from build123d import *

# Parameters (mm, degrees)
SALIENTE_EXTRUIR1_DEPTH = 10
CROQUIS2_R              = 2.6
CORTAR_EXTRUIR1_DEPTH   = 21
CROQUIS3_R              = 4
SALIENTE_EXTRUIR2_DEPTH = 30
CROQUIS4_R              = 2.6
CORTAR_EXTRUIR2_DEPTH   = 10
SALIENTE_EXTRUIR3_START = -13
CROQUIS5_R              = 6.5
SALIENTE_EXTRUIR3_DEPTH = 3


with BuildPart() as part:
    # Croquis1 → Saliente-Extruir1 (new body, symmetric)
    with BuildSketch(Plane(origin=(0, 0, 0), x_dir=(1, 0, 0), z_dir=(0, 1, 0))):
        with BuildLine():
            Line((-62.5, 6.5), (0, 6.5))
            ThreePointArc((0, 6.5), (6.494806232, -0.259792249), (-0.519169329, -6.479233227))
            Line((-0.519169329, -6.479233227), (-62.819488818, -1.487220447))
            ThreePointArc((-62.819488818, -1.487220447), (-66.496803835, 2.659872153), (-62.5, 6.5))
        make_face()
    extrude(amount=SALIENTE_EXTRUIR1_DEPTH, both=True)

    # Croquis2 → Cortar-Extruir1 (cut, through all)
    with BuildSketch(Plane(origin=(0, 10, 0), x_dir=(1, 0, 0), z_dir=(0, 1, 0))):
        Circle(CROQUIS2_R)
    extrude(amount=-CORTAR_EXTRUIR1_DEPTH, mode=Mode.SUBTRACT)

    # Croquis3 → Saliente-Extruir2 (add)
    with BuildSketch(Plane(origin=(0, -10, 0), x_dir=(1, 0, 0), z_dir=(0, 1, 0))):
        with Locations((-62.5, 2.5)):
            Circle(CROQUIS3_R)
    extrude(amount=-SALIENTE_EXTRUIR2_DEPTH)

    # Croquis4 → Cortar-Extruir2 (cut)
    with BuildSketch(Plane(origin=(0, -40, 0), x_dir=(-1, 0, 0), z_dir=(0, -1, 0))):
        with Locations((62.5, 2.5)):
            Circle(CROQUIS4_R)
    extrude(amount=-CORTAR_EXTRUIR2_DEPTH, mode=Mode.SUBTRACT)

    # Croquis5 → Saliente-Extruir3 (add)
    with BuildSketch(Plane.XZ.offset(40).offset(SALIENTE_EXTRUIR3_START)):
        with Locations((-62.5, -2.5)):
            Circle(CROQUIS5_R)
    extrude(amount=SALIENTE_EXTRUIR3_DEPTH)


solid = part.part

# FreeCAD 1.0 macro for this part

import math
import FreeCAD as App
import Part
import Sketcher

V = App.Vector

doc = App.newDocument("Part")
body = doc.addObject("PartDesign::Body", "Body")

sketch1 = body.newObject("Sketcher::SketchObject", "Sketch")
sketch1.AttachmentSupport = (doc.getObject("XZ_Plane"), [""])
sketch1.MapMode = "FlatFace"
sketch1.addGeometry(Part.LineSegment(V(0, -6.5, 0), V(-62.5, -6.5, 0)), False)
sketch1.addGeometry(Part.ArcOfCircle(Part.Circle(V(-62.5, -2.5, 0), V(0, 0, 1), 4), math.radians(94.58122), math.radians(270)), False)
sketch1.addGeometry(Part.LineSegment(V(-62.819489, 1.48722, 0), V(-0.519169, 6.479233, 0)), False)
sketch1.addGeometry(Part.ArcOfCircle(Part.Circle(V(0, 0, 0), V(0, 0, 1), 6.5), math.radians(-90), math.radians(94.58122)), False)
sketch1.addConstraint(Sketcher.Constraint("Tangent", 0, 2, 1, 2))
sketch1.addConstraint(Sketcher.Constraint("Tangent", 1, 1, 2, 1))
sketch1.addConstraint(Sketcher.Constraint("Tangent", 2, 2, 3, 2))
sketch1.addConstraint(Sketcher.Constraint("Tangent", 3, 1, 0, 1))
sketch1.addConstraint(Sketcher.Constraint("Horizontal", 0))
sketch1.addConstraint(Sketcher.Constraint("Coincident", 3, 3, -1, 1))
sketch1.addConstraint(Sketcher.Constraint("Radius", 1, 4.0))
sketch1.addConstraint(Sketcher.Constraint("Radius", 3, 6.5))
sketch1.addConstraint(Sketcher.Constraint("DistanceX", 0, 2, 0, 1, 62.5))
pad1 = body.newObject("PartDesign::Pad", "Pad")
pad1.Profile = sketch1
pad1.Length = 20
pad1.Midplane = True

sketch2 = body.newObject("Sketcher::SketchObject", "Sketch001")
sketch2.AttachmentSupport = (doc.getObject("XZ_Plane"), [""])
sketch2.MapMode = "FlatFace"
sketch2.AttachmentOffset = App.Placement(V(0, 0, -10), App.Rotation())
sketch2.addGeometry(Part.Circle(V(0, 0, 0), V(0, 0, 1), 2.6), False)
sketch2.addConstraint(Sketcher.Constraint("Coincident", 0, 3, -1, 1))
sketch2.addConstraint(Sketcher.Constraint("Diameter", 0, 5.2))
pocket1 = body.newObject("PartDesign::Pocket", "Pocket")
pocket1.Profile = sketch2
pocket1.Type = "ThroughAll"
pocket1.Reversed = True

sketch3 = body.newObject("Sketcher::SketchObject", "Sketch002")
sketch3.AttachmentSupport = (doc.getObject("XZ_Plane"), [""])
sketch3.MapMode = "FlatFace"
sketch3.AttachmentOffset = App.Placement(V(0, 0, 10), App.Rotation())
sketch3.addGeometry(Part.Circle(V(-62.5, -2.5, 0), V(0, 0, 1), 4), False)
sketch3.addConstraint(Sketcher.Constraint("Diameter", 0, 8.0))
sketch3.addConstraint(Sketcher.Constraint("DistanceX", 0, 3, -1, 1, 62.5))
sketch3.addConstraint(Sketcher.Constraint("DistanceY", 0, 3, -1, 1, 2.5))
pad2 = body.newObject("PartDesign::Pad", "Pad001")
pad2.Profile = sketch3
pad2.Length = 30

sketch4 = body.newObject("Sketcher::SketchObject", "Sketch003")
sketch4.AttachmentSupport = (doc.getObject("XZ_Plane"), [""])
sketch4.MapMode = "FlatFace"
sketch4.AttachmentOffset = App.Placement(V(0, 0, 40), App.Rotation())
sketch4.addGeometry(Part.Circle(V(-62.5, -2.5, 0), V(0, 0, 1), 2.6), False)
sketch4.addConstraint(Sketcher.Constraint("Diameter", 0, 5.2))
sketch4.addConstraint(Sketcher.Constraint("DistanceX", 0, 3, -1, 1, 62.5))
sketch4.addConstraint(Sketcher.Constraint("DistanceY", 0, 3, -1, 1, 2.5))
pocket2 = body.newObject("PartDesign::Pocket", "Pocket001")
pocket2.Profile = sketch4
pocket2.Length = 10

sketch5 = body.newObject("Sketcher::SketchObject", "Sketch004")
sketch5.AttachmentSupport = (doc.getObject("XZ_Plane"), [""])
sketch5.MapMode = "FlatFace"
sketch5.AttachmentOffset = App.Placement(V(0, 0, 27), App.Rotation())
sketch5.addGeometry(Part.Circle(V(-62.5, -2.5, 0), V(0, 0, 1), 6.5), False)
sketch5.addConstraint(Sketcher.Constraint("Diameter", 0, 13.0))
sketch5.addConstraint(Sketcher.Constraint("DistanceX", 0, 3, -1, 1, 62.5))
sketch5.addConstraint(Sketcher.Constraint("DistanceY", 0, 3, -1, 1, 2.5))
pad3 = body.newObject("PartDesign::Pad", "Pad002")
pad3.Profile = sketch5
pad3.Length = 3

doc.recompute()
